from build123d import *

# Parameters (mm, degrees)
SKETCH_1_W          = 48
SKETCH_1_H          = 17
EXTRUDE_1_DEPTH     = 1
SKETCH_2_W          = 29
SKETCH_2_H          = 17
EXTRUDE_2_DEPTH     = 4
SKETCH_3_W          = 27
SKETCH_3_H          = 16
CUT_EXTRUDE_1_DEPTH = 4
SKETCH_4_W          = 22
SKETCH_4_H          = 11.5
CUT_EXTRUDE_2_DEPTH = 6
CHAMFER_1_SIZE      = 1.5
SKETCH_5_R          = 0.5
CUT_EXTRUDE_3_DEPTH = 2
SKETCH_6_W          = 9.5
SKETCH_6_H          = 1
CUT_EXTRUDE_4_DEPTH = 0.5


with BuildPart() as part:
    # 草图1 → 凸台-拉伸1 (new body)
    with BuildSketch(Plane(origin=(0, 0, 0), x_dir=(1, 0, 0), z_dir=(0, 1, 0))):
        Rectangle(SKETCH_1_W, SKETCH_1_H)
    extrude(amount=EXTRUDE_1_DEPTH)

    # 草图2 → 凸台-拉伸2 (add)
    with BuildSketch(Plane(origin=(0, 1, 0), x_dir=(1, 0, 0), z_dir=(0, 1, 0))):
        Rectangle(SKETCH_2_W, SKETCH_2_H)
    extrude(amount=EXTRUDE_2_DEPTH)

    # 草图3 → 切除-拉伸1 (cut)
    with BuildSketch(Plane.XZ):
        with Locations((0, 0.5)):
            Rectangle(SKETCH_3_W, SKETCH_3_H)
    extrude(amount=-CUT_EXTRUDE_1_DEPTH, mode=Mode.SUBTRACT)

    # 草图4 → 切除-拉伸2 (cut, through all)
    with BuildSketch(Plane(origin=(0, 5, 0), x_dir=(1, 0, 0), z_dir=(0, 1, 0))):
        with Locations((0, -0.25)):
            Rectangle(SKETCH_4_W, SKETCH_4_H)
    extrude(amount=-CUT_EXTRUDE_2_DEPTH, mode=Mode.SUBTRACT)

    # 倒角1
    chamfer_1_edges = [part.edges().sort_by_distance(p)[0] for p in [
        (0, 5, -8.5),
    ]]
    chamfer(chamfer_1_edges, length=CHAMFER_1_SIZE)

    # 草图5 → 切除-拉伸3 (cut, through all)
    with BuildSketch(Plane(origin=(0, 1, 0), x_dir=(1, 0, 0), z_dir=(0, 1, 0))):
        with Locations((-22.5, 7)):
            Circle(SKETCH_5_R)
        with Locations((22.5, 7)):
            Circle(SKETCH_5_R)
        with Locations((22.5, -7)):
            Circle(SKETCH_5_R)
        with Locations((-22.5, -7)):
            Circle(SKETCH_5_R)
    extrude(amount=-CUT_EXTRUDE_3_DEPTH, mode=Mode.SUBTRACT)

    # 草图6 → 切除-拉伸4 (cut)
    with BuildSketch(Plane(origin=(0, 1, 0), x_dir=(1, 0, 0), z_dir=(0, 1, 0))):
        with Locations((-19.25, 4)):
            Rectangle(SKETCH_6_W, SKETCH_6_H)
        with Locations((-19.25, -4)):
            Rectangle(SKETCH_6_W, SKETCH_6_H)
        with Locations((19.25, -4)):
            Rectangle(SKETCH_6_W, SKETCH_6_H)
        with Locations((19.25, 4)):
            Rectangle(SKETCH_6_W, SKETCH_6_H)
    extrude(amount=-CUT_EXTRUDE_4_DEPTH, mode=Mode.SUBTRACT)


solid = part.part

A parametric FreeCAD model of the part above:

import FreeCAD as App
import Part
import Sketcher
from FreeCAD import Vector
Q = App.Units.Quantity


def edges_at(feature, points):
    """Names of the edges that pass closest to the given points."""
    edges = feature.Shape.Edges
    near = lambda p: min(range(len(edges)), key=lambda i: edges[i].distToShape(Part.Vertex(*p))[0])
    return sorted({f"Edge{near(p) + 1}" for p in points})


def add_polygon(sketch, points):
    """Adds a closed chain of lines whose ends are joined by coincident constraints."""
    first, n = sketch.GeometryCount, len(points)
    for a, b in zip(points, points[1:] + points[:1]):
        sketch.addGeometry(Part.LineSegment(App.Vector(*a, 0), App.Vector(*b, 0)), False)
    for i in range(n):
        sketch.addConstraint(Sketcher.Constraint("Coincident", first + i, 2, first + (i + 1) % n, 1))

doc = App.newDocument("Part")
body = doc.addObject("PartDesign::Body", "Body")

sketch1 = body.newObject("Sketcher::SketchObject", "Sketch")
sketch1.AttachmentSupport = (doc.getObject("XZ_Plane"), [""])
sketch1.MapMode = "FlatFace"
add_polygon(sketch1, [(-24, -8), (-24, 8), (24, 8), (24, -8)])
sketch1.addConstraint(Sketcher.Constraint("Vertical", 0))
sketch1.addConstraint(Sketcher.Constraint("Horizontal", 1))
sketch1.addConstraint(Sketcher.Constraint("Vertical", 2))
sketch1.addConstraint(Sketcher.Constraint("Horizontal", 3))
sketch1.addConstraint(Sketcher.Constraint("Symmetric", 0, 2, 2, 2, -1, 1))
sketch1.addConstraint(Sketcher.Constraint("DistanceX", 1, 1, 1, 2, Q("48 mm")))
sketch1.addConstraint(Sketcher.Constraint("DistanceY", 0, 1, 0, 2, Q("17 mm")))
pad1 = body.newObject("PartDesign::Pad", "Pad")
pad1.Profile = sketch1
pad1.Length = 1
pad1.Reversed = True

sketch2 = body.newObject("Sketcher::SketchObject", "Sketch001")
sketch2.AttachmentSupport = (doc.getObject("XZ_Plane"), [""])
sketch2.MapMode = "FlatFace"
sketch2.AttachmentOffset = App.Placement(Vector(0, 0, -1), App.Rotation())
add_polygon(sketch2, [(-14, -8), (-14, 8), (14, 8), (14, -8)])
sketch2.addConstraint(Sketcher.Constraint("Vertical", 0))
sketch2.addConstraint(Sketcher.Constraint("Horizontal", 1))
sketch2.addConstraint(Sketcher.Constraint("Vertical", 2))
sketch2.addConstraint(Sketcher.Constraint("Horizontal", 3))
sketch2.addConstraint(Sketcher.Constraint("Symmetric", 0, 2, 2, 2, -1, 1))
sketch2.addConstraint(Sketcher.Constraint("DistanceX", 1, 1, 1, 2, Q("29 mm")))
sketch2.addConstraint(Sketcher.Constraint("DistanceY", 0, 1, 0, 2, Q("17 mm")))
pad2 = body.newObject("PartDesign::Pad", "Pad001")
pad2.Profile = sketch2
pad2.Length = 4
pad2.Reversed = True

sketch3 = body.newObject("Sketcher::SketchObject", "Sketch002")
sketch3.AttachmentSupport = (doc.getObject("XZ_Plane"), [""])
sketch3.MapMode = "FlatFace"
add_polygon(sketch3, [(-14, 8), (-14, -8), (14, -8), (14, 8)])
sketch3.addConstraint(Sketcher.Constraint("Vertical", 0))
sketch3.addConstraint(Sketcher.Constraint("Horizontal", 1))
sketch3.addConstraint(Sketcher.Constraint("Vertical", 2))
sketch3.addConstraint(Sketcher.Constraint("Horizontal", 3))
sketch3.addConstraint(Sketcher.Constraint("DistanceX", 1, 1, 1, 2, Q("27 mm")))
sketch3.addConstraint(Sketcher.Constraint("DistanceY", 0, 2, 0, 1, Q("16 mm")))
sketch3.addConstraint(Sketcher.Constraint("DistanceX", 0, 2, -1, 1, Q("13.5 mm")))
sketch3.addConstraint(Sketcher.Constraint("DistanceY", 0, 2, -1, 1, Q("7.5 mm")))
pocket1 = body.newObject("PartDesign::Pocket", "Pocket")
pocket1.Profile = sketch3
pocket1.Length = 4

sketch4 = body.newObject("Sketcher::SketchObject", "Sketch003")
sketch4.AttachmentSupport = (doc.getObject("XZ_Plane"), [""])
sketch4.MapMode = "FlatFace"
sketch4.AttachmentOffset = App.Placement(Vector(0, 0, -5), App.Rotation())
add_polygon(sketch4, [(-11, -6), (-11, 6), (11, 6), (11, -6)])
sketch4.addConstraint(Sketcher.Constraint("Vertical", 0))
sketch4.addConstraint(Sketcher.Constraint("Horizontal", 1))
sketch4.addConstraint(Sketcher.Constraint("Vertical", 2))
sketch4.addConstraint(Sketcher.Constraint("Horizontal", 3))
sketch4.addConstraint(Sketcher.Constraint("DistanceX", 1, 1, 1, 2, Q("22 mm")))
sketch4.addConstraint(Sketcher.Constraint("DistanceY", 0, 1, 0, 2, Q("11.5 mm")))
sketch4.addConstraint(Sketcher.Constraint("DistanceX", 0, 2, -1, 1, Q("11 mm")))
sketch4.addConstraint(Sketcher.Constraint("DistanceY", -1, 1, 0, 2, Q("6 mm")))
pocket2 = body.newObject("PartDesign::Pocket", "Pocket001")
pocket2.Profile = sketch4
pocket2.Type = "ThroughAll"
pocket2.Reversed = True
doc.recompute()

chamfer = body.newObject("PartDesign::Chamfer", "Chamfer")
chamfer.Base = (pocket2, edges_at(pocket2, [(0, 5, -8.5)]))
chamfer.Size = 1.5

sketch5 = body.newObject("Sketcher::SketchObject", "Sketch004")
sketch5.AttachmentSupport = (doc.getObject("XZ_Plane"), [""])
sketch5.MapMode = "FlatFace"
sketch5.AttachmentOffset = App.Placement(Vector(0, 0, -1), App.Rotation())
sketch5.addGeometry(Part.Circle(Vector(-22.5, -7, 0), Vector(0, 0, 1), 0.5), False)
sketch5.addGeometry(Part.Circle(Vector(22.5, -7, 0), Vector(0, 0, 1), 0.5), False)
sketch5.addGeometry(Part.Circle(Vector(22.5, 7, 0), Vector(0, 0, 1), 0.5), False)
sketch5.addGeometry(Part.Circle(Vector(-22.5, 7, 0), Vector(0, 0, 1), 0.5), False)
sketch5.addConstraint(Sketcher.Constraint("Equal", 0, 1))
sketch5.addConstraint(Sketcher.Constraint("Equal", 1, 2))
sketch5.addConstraint(Sketcher.Constraint("Equal", 2, 3))
sketch5.addConstraint(Sketcher.Constraint("Symmetric", 0, 3, 2, 3, -1, 1))
sketch5.addConstraint(Sketcher.Constraint("Symmetric", 1, 3, 3, 3, -1, 1))
sketch5.addConstraint(Sketcher.Constraint("Symmetric", 0, 3, 1, 3, -2))
sketch5.addConstraint(Sketcher.Constraint("Diameter", 0, Q("1 mm")))
sketch5.addConstraint(Sketcher.Constraint("DistanceY", 0, 3, -1, 1, Q("7 mm")))
sketch5.addConstraint(Sketcher.Constraint("DistanceX", 0, 3, 1, 3, Q("45 mm")))
pocket3 = body.newObject("PartDesign::Pocket", "Pocket002")
pocket3.Profile = sketch5
pocket3.Type = "ThroughAll"
pocket3.Reversed = True

sketch6 = body.newObject("Sketcher::SketchObject", "Sketch005")
sketch6.AttachmentSupport = (doc.getObject("XZ_Plane"), [""])
sketch6.MapMode = "FlatFace"
sketch6.AttachmentOffset = App.Placement(Vector(0, 0, -1), App.Rotation())
add_polygon(sketch6, [(-24, -4.5), (-24, -3.5), (-14.5, -3.5), (-14.5, -4.5)])
add_polygon(sketch6, [(-24, 3.5), (-24, 4.5), (-14.5, 4.5), (-14.5, 3.5)])
add_polygon(sketch6, [(14.5, 3.5), (14.5, 4.5), (24, 4.5), (24, 3.5)])
add_polygon(sketch6, [(14.5, -4.5), (14.5, -3.5), (24, -3.5), (24, -4.5)])
sketch6.addConstraint(Sketcher.Constraint("Vertical", 0))
sketch6.addConstraint(Sketcher.Constraint("Horizontal", 1))
sketch6.addConstraint(Sketcher.Constraint("Vertical", 2))
sketch6.addConstraint(Sketcher.Constraint("Horizontal", 3))
sketch6.addConstraint(Sketcher.Constraint("Vertical", 4))
sketch6.addConstraint(Sketcher.Constraint("Horizontal", 5))
sketch6.addConstraint(Sketcher.Constraint("Vertical", 6))
sketch6.addConstraint(Sketcher.Constraint("Horizontal", 7))
sketch6.addConstraint(Sketcher.Constraint("Vertical", 8))
sketch6.addConstraint(Sketcher.Constraint("Horizontal", 9))
sketch6.addConstraint(Sketcher.Constraint("Vertical", 10))
sketch6.addConstraint(Sketcher.Constraint("Horizontal", 11))
sketch6.addConstraint(Sketcher.Constraint("Vertical", 12))
sketch6.addConstraint(Sketcher.Constraint("Horizontal", 13))
sketch6.addConstraint(Sketcher.Constraint("Vertical", 14))
sketch6.addConstraint(Sketcher.Constraint("Horizontal", 15))
sketch6.addConstraint(Sketcher.Constraint("Symmetric", 2, 2, 8, 2, -1, 1))
sketch6.addConstraint(Sketcher.Constraint("Symmetric", 0, 2, 10, 2, -1, 1))
sketch6.addConstraint(Sketcher.Constraint("Symmetric", 6, 2, 12, 2, -1, 1))
sketch6.addConstraint(Sketcher.Constraint("Symmetric", 4, 2, 14, 2, -1, 1))
sketch6.addConstraint(Sketcher.Constraint("Symmetric", 5, 2, 8, 2, -2))
sketch6.addConstraint(Sketcher.Constraint("Symmetric", 7, 2, 10, 2, -2))
sketch6.addConstraint(Sketcher.Constraint("DistanceY", 0, 1, 0, 2, Q("1 mm")))
sketch6.addConstraint(Sketcher.Constraint("DistanceX", 1, 1, 1, 2, Q("9.5 mm")))
sketch6.addConstraint(Sketcher.Constraint("DistanceX", 0, 2, -1, 1, Q("24 mm")))
sketch6.addConstraint(Sketcher.Constraint("DistanceY", 0, 2, 4, 2, Q("8 mm")))
pocket4 = body.newObject("PartDesign::Pocket", "Pocket003")
pocket4.Profile = sketch6
pocket4.Length = 0.5
pocket4.Reversed = True

doc.recompute()
